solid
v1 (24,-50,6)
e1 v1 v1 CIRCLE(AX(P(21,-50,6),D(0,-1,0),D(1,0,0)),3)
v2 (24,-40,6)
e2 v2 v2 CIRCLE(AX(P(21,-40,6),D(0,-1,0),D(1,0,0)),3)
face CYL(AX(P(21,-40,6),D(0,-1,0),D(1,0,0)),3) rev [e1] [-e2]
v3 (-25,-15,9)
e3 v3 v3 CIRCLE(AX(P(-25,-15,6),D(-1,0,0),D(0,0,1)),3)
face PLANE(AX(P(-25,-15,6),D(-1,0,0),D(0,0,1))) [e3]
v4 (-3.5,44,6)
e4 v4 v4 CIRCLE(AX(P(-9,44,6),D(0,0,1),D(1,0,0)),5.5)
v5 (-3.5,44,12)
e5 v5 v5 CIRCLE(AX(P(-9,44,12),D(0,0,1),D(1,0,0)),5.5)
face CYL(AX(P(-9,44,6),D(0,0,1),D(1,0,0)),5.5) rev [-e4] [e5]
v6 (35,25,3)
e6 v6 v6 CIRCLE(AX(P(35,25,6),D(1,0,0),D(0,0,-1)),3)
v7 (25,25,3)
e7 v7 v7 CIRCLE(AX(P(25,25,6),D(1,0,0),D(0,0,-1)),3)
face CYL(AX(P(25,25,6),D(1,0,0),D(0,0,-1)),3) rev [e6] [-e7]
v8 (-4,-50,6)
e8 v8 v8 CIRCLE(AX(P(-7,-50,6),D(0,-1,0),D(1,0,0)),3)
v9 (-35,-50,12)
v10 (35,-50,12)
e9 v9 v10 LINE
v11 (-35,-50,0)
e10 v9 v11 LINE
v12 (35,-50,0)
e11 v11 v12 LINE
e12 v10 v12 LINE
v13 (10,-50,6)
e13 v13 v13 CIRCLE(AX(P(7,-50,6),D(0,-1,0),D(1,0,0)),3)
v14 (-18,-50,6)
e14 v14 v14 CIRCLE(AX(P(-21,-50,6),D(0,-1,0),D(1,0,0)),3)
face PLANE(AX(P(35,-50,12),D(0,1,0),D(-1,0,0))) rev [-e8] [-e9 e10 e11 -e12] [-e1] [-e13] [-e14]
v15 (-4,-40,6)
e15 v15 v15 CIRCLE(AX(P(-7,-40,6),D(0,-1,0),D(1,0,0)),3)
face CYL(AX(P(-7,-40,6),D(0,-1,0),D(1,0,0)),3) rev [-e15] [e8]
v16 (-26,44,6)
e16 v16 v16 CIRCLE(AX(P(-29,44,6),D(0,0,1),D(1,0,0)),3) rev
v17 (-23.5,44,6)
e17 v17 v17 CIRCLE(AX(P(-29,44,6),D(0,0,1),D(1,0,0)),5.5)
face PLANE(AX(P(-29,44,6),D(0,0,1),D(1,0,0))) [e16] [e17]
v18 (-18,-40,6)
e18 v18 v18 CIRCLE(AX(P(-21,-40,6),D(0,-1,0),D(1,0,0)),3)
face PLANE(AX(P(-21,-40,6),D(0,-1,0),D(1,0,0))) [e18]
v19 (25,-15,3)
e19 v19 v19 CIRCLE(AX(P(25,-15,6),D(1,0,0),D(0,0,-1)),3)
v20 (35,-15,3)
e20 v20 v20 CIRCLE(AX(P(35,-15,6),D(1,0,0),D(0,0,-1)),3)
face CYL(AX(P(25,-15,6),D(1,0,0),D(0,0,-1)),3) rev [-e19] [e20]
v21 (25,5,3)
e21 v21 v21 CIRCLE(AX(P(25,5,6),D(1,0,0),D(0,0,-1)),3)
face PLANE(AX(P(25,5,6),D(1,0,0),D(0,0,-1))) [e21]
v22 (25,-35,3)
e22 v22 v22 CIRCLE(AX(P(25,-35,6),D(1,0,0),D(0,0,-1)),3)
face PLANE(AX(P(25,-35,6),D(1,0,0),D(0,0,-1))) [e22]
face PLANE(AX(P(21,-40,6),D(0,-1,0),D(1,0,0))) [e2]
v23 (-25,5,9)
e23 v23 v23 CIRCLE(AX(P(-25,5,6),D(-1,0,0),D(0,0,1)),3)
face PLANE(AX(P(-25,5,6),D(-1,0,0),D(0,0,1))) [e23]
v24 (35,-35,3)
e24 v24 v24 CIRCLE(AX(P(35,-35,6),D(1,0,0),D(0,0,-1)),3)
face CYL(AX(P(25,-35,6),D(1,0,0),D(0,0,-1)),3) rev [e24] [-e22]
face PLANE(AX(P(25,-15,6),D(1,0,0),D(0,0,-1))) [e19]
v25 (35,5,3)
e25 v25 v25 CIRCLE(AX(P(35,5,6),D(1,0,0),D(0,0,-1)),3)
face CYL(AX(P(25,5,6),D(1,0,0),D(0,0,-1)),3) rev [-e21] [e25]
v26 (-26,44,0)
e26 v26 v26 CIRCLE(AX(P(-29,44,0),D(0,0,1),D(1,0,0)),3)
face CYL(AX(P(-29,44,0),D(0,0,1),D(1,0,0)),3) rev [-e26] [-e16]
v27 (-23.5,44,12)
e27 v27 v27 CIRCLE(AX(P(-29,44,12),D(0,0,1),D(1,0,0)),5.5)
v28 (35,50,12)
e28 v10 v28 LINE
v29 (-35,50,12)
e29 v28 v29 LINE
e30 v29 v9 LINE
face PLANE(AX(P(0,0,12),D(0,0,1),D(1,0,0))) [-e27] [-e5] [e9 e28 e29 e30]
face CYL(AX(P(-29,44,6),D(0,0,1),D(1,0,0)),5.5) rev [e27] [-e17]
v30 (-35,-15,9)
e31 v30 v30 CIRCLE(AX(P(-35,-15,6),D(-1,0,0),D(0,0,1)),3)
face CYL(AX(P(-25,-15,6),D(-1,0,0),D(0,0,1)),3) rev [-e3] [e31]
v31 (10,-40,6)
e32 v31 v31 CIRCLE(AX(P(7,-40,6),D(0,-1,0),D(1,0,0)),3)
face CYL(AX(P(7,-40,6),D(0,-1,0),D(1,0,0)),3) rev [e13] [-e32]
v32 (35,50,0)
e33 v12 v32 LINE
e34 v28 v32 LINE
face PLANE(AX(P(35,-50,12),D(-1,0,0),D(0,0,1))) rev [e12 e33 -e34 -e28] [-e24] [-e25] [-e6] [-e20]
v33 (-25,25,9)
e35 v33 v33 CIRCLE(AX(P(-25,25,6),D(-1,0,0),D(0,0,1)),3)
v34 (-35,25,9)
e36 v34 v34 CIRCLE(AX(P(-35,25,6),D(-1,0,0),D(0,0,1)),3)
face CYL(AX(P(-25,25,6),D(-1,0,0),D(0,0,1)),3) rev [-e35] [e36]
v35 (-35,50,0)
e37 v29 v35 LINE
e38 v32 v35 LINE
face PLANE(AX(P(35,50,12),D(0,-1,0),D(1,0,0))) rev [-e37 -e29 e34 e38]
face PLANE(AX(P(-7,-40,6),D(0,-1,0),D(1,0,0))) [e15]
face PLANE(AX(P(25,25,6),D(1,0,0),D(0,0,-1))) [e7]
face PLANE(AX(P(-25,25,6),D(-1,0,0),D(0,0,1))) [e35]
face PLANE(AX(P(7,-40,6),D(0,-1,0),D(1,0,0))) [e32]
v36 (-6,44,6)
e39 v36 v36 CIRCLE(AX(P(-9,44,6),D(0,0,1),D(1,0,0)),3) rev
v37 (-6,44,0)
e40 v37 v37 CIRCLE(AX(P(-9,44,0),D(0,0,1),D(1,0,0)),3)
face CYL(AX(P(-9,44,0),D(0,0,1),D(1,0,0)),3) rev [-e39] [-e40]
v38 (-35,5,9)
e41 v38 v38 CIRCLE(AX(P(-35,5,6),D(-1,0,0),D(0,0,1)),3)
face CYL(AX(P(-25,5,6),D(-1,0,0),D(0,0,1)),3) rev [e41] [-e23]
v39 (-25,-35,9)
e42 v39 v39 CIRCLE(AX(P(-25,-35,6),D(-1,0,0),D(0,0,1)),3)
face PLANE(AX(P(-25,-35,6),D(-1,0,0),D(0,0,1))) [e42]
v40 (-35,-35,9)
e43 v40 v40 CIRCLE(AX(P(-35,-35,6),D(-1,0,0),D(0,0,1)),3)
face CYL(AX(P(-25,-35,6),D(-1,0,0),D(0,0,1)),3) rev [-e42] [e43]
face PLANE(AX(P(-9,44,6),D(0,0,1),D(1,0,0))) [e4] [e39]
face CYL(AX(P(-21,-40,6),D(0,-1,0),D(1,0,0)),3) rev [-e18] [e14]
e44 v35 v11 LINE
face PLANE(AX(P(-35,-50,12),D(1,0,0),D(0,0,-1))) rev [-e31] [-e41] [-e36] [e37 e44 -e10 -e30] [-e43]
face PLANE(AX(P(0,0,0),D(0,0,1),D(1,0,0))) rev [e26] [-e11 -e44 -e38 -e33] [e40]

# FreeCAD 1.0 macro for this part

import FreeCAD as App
import Part
import Sketcher
from FreeCAD import Vector


def add_polygon(sketch, points):
    """Adds a closed chain of lines whose ends are joined by coincident constraints."""
    first, n = sketch.GeometryCount, len(points)
    for a, b in zip(points, points[1:] + points[:1]):
        sketch.addGeometry(Part.LineSegment(App.Vector(*a, 0), App.Vector(*b, 0)), False)
    for i in range(n):
        sketch.addConstraint(Sketcher.Constraint("Coincident", first + i, 2, first + (i + 1) % n, 1))

doc = App.newDocument("Part")
body = doc.addObject("PartDesign::Body", "Body")

# Sketch on XY plane
sketch1 = doc.addObject("Sketcher::SketchObject", "Sketch")
body.addObject(sketch1)
sketch1.AttachmentSupport = (doc.XY_Plane, [""])
sketch1.MapMode = "FlatFace"
add_polygon(sketch1, [(-35, 50), (-35, -50), (35, -50), (35, 50)])  # lines 0-3
sketch1.addConstraint(Sketcher.Constraint("Vertical", 0))
sketch1.addConstraint(Sketcher.Constraint("Horizontal", 1))
sketch1.addConstraint(Sketcher.Constraint("Vertical", 2))
sketch1.addConstraint(Sketcher.Constraint("Horizontal", 3))
sketch1.addConstraint(Sketcher.Constraint("Symmetric", 0, 2, 2, 2, -1, 1))
sketch1.addConstraint(Sketcher.Constraint("DistanceX", 1, 1, 1, 2, 70.0))
sketch1.addConstraint(Sketcher.Constraint("DistanceY", 0, 2, 0, 1, 100.0))
pad1 = doc.addObject("PartDesign::Pad", "Pad")
body.addObject(pad1)
pad1.Profile = sketch1
pad1.Length = 12

# Sketch on YZ plane
sketch2 = doc.addObject("Sketcher::SketchObject", "Sketch001")
body.addObject(sketch2)
sketch2.AttachmentSupport = (doc.YZ_Plane, [""])
sketch2.MapMode = "FlatFace"
sketch2.AttachmentOffset = App.Placement(Vector(0, 0, -35), App.Rotation())
sketch2.addGeometry(Part.Circle(Vector(-35, 6, 0), Vector(0, 0, 1), 3), False)
sketch2.addGeometry(Part.Circle(Vector(-15, 6, 0), Vector(0, 0, 1), 3), False)
sketch2.addGeometry(Part.Circle(Vector(5, 6, 0), Vector(0, 0, 1), 3), False)
sketch2.addGeometry(Part.Circle(Vector(25, 6, 0), Vector(0, 0, 1), 3), False)
sketch2.addConstraint(Sketcher.Constraint("Equal", 0, 1))
sketch2.addConstraint(Sketcher.Constraint("Equal", 1, 2))
sketch2.addConstraint(Sketcher.Constraint("Equal", 2, 3))
sketch2.addConstraint(Sketcher.Constraint("Horizontal", 0, 3, 1, 3))
sketch2.addConstraint(Sketcher.Constraint("Horizontal", 1, 3, 2, 3))
sketch2.addConstraint(Sketcher.Constraint("Horizontal", 2, 3, 3, 3))
sketch2.addConstraint(Sketcher.Constraint("Diameter", 0, 6.0))
sketch2.addConstraint(Sketcher.Constraint("DistanceX", 0, 3, -1, 1, 35.0))
sketch2.addConstraint(Sketcher.Constraint("DistanceY", -1, 1, 0, 3, 6.0))
sketch2.addConstraint(Sketcher.Constraint("DistanceX", 1, 3, -1, 1, 15.0))
sketch2.addConstraint(Sketcher.Constraint("DistanceX", -1, 1, 2, 3, 5.0))
sketch2.addConstraint(Sketcher.Constraint("DistanceX", -1, 1, 3, 3, 25.0))
pocket1 = doc.addObject("PartDesign::Pocket", "Pocket")
body.addObject(pocket1)
pocket1.Profile = sketch2
pocket1.Length = 10
pocket1.Reversed = True

# Sketch on XY plane
sketch3 = doc.addObject("Sketcher::SketchObject", "Sketch002")
body.addObject(sketch3)
sketch3.AttachmentSupport = (doc.XY_Plane, [""])
sketch3.MapMode = "FlatFace"
sketch3.AttachmentOffset = App.Placement(Vector(0, 0, 12), App.Rotation())
sketch3.addGeometry(Part.Circle(Vector(-29, 44, 0), Vector(0, 0, 1), 3), False)
sketch3.addGeometry(Part.Circle(Vector(-9, 44, 0), Vector(0, 0, 1), 3), False)
sketch3.addConstraint(Sketcher.Constraint("Equal", 0, 1))
sketch3.addConstraint(Sketcher.Constraint("Horizontal", 0, 3, 1, 3))
sketch3.addConstraint(Sketcher.Constraint("Diameter", 0, 6.0))
sketch3.addConstraint(Sketcher.Constraint("DistanceX", 0, 3, -1, 1, 29.0))
sketch3.addConstraint(Sketcher.Constraint("DistanceY", -1, 1, 0, 3, 44.0))
sketch3.addConstraint(Sketcher.Constraint("DistanceX", 1, 3, -1, 1, 9.0))
pocket2 = doc.addObject("PartDesign::Pocket", "Pocket001")
body.addObject(pocket2)
pocket2.Profile = sketch3
pocket2.Length = 12

# Sketch on XY plane
sketch4 = doc.addObject("Sketcher::SketchObject", "Sketch003")
body.addObject(sketch4)
sketch4.AttachmentSupport = (doc.XY_Plane, [""])
sketch4.MapMode = "FlatFace"
sketch4.AttachmentOffset = App.Placement(Vector(0, 0, 12), App.Rotation())
sketch4.addGeometry(Part.Circle(Vector(-29, 44, 0), Vector(0, 0, 1), 6), False)
sketch4.addGeometry(Part.Circle(Vector(-9, 44, 0), Vector(0, 0, 1), 6), False)
sketch4.addConstraint(Sketcher.Constraint("Equal", 0, 1))
sketch4.addConstraint(Sketcher.Constraint("Horizontal", 0, 3, 1, 3))
sketch4.addConstraint(Sketcher.Constraint("Diameter", 0, 11.0))
sketch4.addConstraint(Sketcher.Constraint("DistanceX", 0, 3, -1, 1, 29.0))
sketch4.addConstraint(Sketcher.Constraint("DistanceY", -1, 1, 0, 3, 44.0))
sketch4.addConstraint(Sketcher.Constraint("DistanceX", 1, 3, -1, 1, 9.0))
pocket3 = doc.addObject("PartDesign::Pocket", "Pocket002")
body.addObject(pocket3)
pocket3.Profile = sketch4
pocket3.Length = 6

# Sketch on YZ plane
sketch5 = doc.addObject("Sketcher::SketchObject", "Sketch004")
body.addObject(sketch5)
sketch5.AttachmentSupport = (doc.YZ_Plane, [""])
sketch5.MapMode = "FlatFace"
sketch5.AttachmentOffset = App.Placement(Vector(0, 0, 25), App.Rotation())
sketch5.addGeometry(Part.Circle(Vector(-35, 6, 0), Vector(0, 0, 1), 3), False)
sketch5.addGeometry(Part.Circle(Vector(-15, 6, 0), Vector(0, 0, 1), 3), False)
sketch5.addGeometry(Part.Circle(Vector(5, 6, 0), Vector(0, 0, 1), 3), False)
sketch5.addGeometry(Part.Circle(Vector(25, 6, 0), Vector(0, 0, 1), 3), False)
sketch5.addConstraint(Sketcher.Constraint("Equal", 0, 1))
sketch5.addConstraint(Sketcher.Constraint("Equal", 1, 2))
sketch5.addConstraint(Sketcher.Constraint("Equal", 2, 3))
sketch5.addConstraint(Sketcher.Constraint("Horizontal", 0, 3, 1, 3))
sketch5.addConstraint(Sketcher.Constraint("Horizontal", 1, 3, 2, 3))
sketch5.addConstraint(Sketcher.Constraint("Horizontal", 2, 3, 3, 3))
sketch5.addConstraint(Sketcher.Constraint("Diameter", 0, 6.0))
sketch5.addConstraint(Sketcher.Constraint("DistanceX", 0, 3, -1, 1, 35.0))
sketch5.addConstraint(Sketcher.Constraint("DistanceY", -1, 1, 0, 3, 6.0))
sketch5.addConstraint(Sketcher.Constraint("DistanceX", 1, 3, -1, 1, 15.0))
sketch5.addConstraint(Sketcher.Constraint("DistanceX", -1, 1, 2, 3, 5.0))
sketch5.addConstraint(Sketcher.Constraint("DistanceX", -1, 1, 3, 3, 25.0))
pocket4 = doc.addObject("PartDesign::Pocket", "Pocket003")
body.addObject(pocket4)
pocket4.Profile = sketch5
pocket4.Length = 10
pocket4.Reversed = True

# Sketch on XZ plane
sketch6 = doc.addObject("Sketcher::SketchObject", "Sketch005")
body.addObject(sketch6)
sketch6.AttachmentSupport = (doc.XZ_Plane, [""])
sketch6.MapMode = "FlatFace"
sketch6.AttachmentOffset = App.Placement(Vector(0, 0, 50), App.Rotation())
sketch6.addGeometry(Part.Circle(Vector(-21, 6, 0), Vector(0, 0, 1), 3), False)
sketch6.addGeometry(Part.Circle(Vector(-7, 6, 0), Vector(0, 0, 1), 3), False)
sketch6.addGeometry(Part.Circle(Vector(7, 6, 0), Vector(0, 0, 1), 3), False)
sketch6.addGeometry(Part.Circle(Vector(21, 6, 0), Vector(0, 0, 1), 3), False)
sketch6.addConstraint(Sketcher.Constraint("Equal", 0, 1))
sketch6.addConstraint(Sketcher.Constraint("Equal", 1, 2))
sketch6.addConstraint(Sketcher.Constraint("Equal", 2, 3))
sketch6.addConstraint(Sketcher.Constraint("Symmetric", 1, 3, 2, 3, -2))
sketch6.addConstraint(Sketcher.Constraint("Symmetric", 0, 3, 3, 3, -2))
sketch6.addConstraint(Sketcher.Constraint("Horizontal", 0, 3, 1, 3))
sketch6.addConstraint(Sketcher.Constraint("Diameter", 0, 6.0))
sketch6.addConstraint(Sketcher.Constraint("DistanceX", 0, 3, -1, 1, 21.0))
sketch6.addConstraint(Sketcher.Constraint("DistanceY", -1, 1, 0, 3, 6.0))
sketch6.addConstraint(Sketcher.Constraint("DistanceX", 1, 3, -1, 1, 7.0))
pocket5 = doc.addObject("PartDesign::Pocket", "Pocket004")
body.addObject(pocket5)
pocket5.Profile = sketch6
pocket5.Length = 10

doc.recompute()
